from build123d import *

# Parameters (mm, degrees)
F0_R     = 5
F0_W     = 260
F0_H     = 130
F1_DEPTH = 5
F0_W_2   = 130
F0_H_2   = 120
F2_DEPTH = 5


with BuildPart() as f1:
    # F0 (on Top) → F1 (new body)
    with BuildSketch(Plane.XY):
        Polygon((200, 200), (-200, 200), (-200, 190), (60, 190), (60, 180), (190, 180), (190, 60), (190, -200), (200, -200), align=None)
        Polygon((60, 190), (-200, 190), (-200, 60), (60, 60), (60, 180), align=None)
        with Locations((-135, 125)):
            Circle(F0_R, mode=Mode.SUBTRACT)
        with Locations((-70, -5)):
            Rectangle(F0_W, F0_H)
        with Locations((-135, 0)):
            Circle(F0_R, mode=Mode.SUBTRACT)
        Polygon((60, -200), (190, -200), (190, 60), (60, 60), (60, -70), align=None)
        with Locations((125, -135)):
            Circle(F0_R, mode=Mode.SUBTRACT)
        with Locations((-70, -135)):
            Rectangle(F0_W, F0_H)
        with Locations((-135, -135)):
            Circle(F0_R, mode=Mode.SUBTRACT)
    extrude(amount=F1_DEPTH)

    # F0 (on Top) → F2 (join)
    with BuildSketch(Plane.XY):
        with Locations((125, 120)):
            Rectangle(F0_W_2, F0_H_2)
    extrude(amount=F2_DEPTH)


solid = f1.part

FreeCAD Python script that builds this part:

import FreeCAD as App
import Part
import Sketcher
Q = App.Units.Quantity

doc = App.newDocument("Part")
body = doc.addObject("PartDesign::Body", "Body")

sketch1 = body.newObject("Sketcher::SketchObject", "Sketch")
sketch1.AttachmentSupport = (doc.getObject("XY_Plane"), [""])
sketch1.MapMode = "FlatFace"
sketch1.addGeometry([
    Part.LineSegment(App.Vector(200, 200, 0), App.Vector(-200, 200, 0)),
    Part.LineSegment(App.Vector(-200, 200, 0), App.Vector(-200, -200, 0)),
    Part.LineSegment(App.Vector(-200, -200, 0), App.Vector(200, -200, 0)),
    Part.LineSegment(App.Vector(200, -200, 0), App.Vector(200, 200, 0)),
    Part.Circle(App.Vector(-135, -135, 0), App.Vector(0, 0, 1), 5),
    Part.Circle(App.Vector(-135, 0, 0), App.Vector(0, 0, 1), 5),
    Part.Circle(App.Vector(125, -135, 0), App.Vector(0, 0, 1), 5),
    Part.Circle(App.Vector(-135, 125, 0), App.Vector(0, 0, 1), 5),
    Part.LineSegment(App.Vector(190, 180, 0), App.Vector(190, 60, 0)),
    Part.LineSegment(App.Vector(190, 60, 0), App.Vector(60, 60, 0)),
    Part.LineSegment(App.Vector(60, 60, 0), App.Vector(60, 180, 0)),
    Part.LineSegment(App.Vector(60, 180, 0), App.Vector(190, 180, 0)),
], False)
sketch1.addConstraint([
    Sketcher.Constraint("Coincident", 0, 2, 1, 1),
    Sketcher.Constraint("Coincident", 1, 2, 2, 1),
    Sketcher.Constraint("Coincident", 2, 2, 3, 1),
    Sketcher.Constraint("Coincident", 3, 2, 0, 1),
    Sketcher.Constraint("Coincident", 8, 2, 9, 1),
    Sketcher.Constraint("Coincident", 9, 2, 10, 1),
    Sketcher.Constraint("Coincident", 10, 2, 11, 1),
    Sketcher.Constraint("Coincident", 11, 2, 8, 1),
    Sketcher.Constraint("Horizontal", 0),
    Sketcher.Constraint("Vertical", 1),
    Sketcher.Constraint("Horizontal", 2),
    Sketcher.Constraint("Vertical", 3),
    Sketcher.Constraint("Vertical", 8),
    Sketcher.Constraint("Horizontal", 9),
    Sketcher.Constraint("Vertical", 10),
    Sketcher.Constraint("Horizontal", 11),
    Sketcher.Constraint("Equal", 4, 5),
    Sketcher.Constraint("Equal", 5, 6),
    Sketcher.Constraint("Equal", 6, 7),
    Sketcher.Constraint("Symmetric", 0, 2, 2, 2, -1, 1),
    Sketcher.Constraint("PointOnObject", 5, 3, -1),
    Sketcher.Constraint("Horizontal", 4, 3, 6, 3),
    Sketcher.Constraint("Vertical", 4, 3, 5, 3),
    Sketcher.Constraint("Vertical", 5, 3, 7, 3),
    Sketcher.Constraint("Equal", 2, 1),
    Sketcher.Constraint("Diameter", 4, Q("10 mm")),
    Sketcher.Constraint("DistanceX", 0, 2, 0, 1, Q("400 mm")),
    Sketcher.Constraint("DistanceX", 9, 2, 9, 1, Q("130 mm")),
    Sketcher.Constraint("DistanceY", 8, 2, 8, 1, Q("120 mm")),
    Sketcher.Constraint("DistanceX", 4, 3, -1, 1, Q("135 mm")),
    Sketcher.Constraint("DistanceY", 4, 3, -1, 1, Q("135 mm")),
    Sketcher.Constraint("DistanceX", -1, 1, 6, 3, Q("125 mm")),
    Sketcher.Constraint("DistanceY", -1, 1, 7, 3, Q("125 mm")),
    Sketcher.Constraint("DistanceX", -1, 1, 8, 2, Q("190 mm")),
    Sketcher.Constraint("DistanceY", -1, 1, 8, 2, Q("60 mm")),
])
pad1 = body.newObject("PartDesign::Pad", "Pad")
pad1.Profile = sketch1
pad1.Length = 5

sketch2 = body.newObject("Sketcher::SketchObject", "Sketch001")
sketch2.AttachmentSupport = (doc.getObject("XY_Plane"), [""])
sketch2.MapMode = "FlatFace"
sketch2.addGeometry([
    Part.LineSegment(App.Vector(60, 180, 0), App.Vector(60, 60, 0)),
    Part.LineSegment(App.Vector(60, 60, 0), App.Vector(190, 60, 0)),
    Part.LineSegment(App.Vector(190, 60, 0), App.Vector(190, 180, 0)),
    Part.LineSegment(App.Vector(190, 180, 0), App.Vector(60, 180, 0)),
], False)
sketch2.addConstraint([
    Sketcher.Constraint("Coincident", 0, 2, 1, 1),
    Sketcher.Constraint("Coincident", 1, 2, 2, 1),
    Sketcher.Constraint("Coincident", 2, 2, 3, 1),
    Sketcher.Constraint("Coincident", 3, 2, 0, 1),
    Sketcher.Constraint("Vertical", 0),
    Sketcher.Constraint("Horizontal", 1),
    Sketcher.Constraint("Vertical", 2),
    Sketcher.Constraint("Horizontal", 3),
    Sketcher.Constraint("DistanceX", 1, 1, 1, 2, Q("130 mm")),
    Sketcher.Constraint("DistanceY", 0, 2, 0, 1, Q("120 mm")),
    Sketcher.Constraint("DistanceX", -1, 1, 0, 2, Q("60 mm")),
    Sketcher.Constraint("DistanceY", -1, 1, 0, 2, Q("60 mm")),
])
pad2 = body.newObject("PartDesign::Pad", "Pad001")
pad2.Profile = sketch2
pad2.Length = 5

doc.recompute()
